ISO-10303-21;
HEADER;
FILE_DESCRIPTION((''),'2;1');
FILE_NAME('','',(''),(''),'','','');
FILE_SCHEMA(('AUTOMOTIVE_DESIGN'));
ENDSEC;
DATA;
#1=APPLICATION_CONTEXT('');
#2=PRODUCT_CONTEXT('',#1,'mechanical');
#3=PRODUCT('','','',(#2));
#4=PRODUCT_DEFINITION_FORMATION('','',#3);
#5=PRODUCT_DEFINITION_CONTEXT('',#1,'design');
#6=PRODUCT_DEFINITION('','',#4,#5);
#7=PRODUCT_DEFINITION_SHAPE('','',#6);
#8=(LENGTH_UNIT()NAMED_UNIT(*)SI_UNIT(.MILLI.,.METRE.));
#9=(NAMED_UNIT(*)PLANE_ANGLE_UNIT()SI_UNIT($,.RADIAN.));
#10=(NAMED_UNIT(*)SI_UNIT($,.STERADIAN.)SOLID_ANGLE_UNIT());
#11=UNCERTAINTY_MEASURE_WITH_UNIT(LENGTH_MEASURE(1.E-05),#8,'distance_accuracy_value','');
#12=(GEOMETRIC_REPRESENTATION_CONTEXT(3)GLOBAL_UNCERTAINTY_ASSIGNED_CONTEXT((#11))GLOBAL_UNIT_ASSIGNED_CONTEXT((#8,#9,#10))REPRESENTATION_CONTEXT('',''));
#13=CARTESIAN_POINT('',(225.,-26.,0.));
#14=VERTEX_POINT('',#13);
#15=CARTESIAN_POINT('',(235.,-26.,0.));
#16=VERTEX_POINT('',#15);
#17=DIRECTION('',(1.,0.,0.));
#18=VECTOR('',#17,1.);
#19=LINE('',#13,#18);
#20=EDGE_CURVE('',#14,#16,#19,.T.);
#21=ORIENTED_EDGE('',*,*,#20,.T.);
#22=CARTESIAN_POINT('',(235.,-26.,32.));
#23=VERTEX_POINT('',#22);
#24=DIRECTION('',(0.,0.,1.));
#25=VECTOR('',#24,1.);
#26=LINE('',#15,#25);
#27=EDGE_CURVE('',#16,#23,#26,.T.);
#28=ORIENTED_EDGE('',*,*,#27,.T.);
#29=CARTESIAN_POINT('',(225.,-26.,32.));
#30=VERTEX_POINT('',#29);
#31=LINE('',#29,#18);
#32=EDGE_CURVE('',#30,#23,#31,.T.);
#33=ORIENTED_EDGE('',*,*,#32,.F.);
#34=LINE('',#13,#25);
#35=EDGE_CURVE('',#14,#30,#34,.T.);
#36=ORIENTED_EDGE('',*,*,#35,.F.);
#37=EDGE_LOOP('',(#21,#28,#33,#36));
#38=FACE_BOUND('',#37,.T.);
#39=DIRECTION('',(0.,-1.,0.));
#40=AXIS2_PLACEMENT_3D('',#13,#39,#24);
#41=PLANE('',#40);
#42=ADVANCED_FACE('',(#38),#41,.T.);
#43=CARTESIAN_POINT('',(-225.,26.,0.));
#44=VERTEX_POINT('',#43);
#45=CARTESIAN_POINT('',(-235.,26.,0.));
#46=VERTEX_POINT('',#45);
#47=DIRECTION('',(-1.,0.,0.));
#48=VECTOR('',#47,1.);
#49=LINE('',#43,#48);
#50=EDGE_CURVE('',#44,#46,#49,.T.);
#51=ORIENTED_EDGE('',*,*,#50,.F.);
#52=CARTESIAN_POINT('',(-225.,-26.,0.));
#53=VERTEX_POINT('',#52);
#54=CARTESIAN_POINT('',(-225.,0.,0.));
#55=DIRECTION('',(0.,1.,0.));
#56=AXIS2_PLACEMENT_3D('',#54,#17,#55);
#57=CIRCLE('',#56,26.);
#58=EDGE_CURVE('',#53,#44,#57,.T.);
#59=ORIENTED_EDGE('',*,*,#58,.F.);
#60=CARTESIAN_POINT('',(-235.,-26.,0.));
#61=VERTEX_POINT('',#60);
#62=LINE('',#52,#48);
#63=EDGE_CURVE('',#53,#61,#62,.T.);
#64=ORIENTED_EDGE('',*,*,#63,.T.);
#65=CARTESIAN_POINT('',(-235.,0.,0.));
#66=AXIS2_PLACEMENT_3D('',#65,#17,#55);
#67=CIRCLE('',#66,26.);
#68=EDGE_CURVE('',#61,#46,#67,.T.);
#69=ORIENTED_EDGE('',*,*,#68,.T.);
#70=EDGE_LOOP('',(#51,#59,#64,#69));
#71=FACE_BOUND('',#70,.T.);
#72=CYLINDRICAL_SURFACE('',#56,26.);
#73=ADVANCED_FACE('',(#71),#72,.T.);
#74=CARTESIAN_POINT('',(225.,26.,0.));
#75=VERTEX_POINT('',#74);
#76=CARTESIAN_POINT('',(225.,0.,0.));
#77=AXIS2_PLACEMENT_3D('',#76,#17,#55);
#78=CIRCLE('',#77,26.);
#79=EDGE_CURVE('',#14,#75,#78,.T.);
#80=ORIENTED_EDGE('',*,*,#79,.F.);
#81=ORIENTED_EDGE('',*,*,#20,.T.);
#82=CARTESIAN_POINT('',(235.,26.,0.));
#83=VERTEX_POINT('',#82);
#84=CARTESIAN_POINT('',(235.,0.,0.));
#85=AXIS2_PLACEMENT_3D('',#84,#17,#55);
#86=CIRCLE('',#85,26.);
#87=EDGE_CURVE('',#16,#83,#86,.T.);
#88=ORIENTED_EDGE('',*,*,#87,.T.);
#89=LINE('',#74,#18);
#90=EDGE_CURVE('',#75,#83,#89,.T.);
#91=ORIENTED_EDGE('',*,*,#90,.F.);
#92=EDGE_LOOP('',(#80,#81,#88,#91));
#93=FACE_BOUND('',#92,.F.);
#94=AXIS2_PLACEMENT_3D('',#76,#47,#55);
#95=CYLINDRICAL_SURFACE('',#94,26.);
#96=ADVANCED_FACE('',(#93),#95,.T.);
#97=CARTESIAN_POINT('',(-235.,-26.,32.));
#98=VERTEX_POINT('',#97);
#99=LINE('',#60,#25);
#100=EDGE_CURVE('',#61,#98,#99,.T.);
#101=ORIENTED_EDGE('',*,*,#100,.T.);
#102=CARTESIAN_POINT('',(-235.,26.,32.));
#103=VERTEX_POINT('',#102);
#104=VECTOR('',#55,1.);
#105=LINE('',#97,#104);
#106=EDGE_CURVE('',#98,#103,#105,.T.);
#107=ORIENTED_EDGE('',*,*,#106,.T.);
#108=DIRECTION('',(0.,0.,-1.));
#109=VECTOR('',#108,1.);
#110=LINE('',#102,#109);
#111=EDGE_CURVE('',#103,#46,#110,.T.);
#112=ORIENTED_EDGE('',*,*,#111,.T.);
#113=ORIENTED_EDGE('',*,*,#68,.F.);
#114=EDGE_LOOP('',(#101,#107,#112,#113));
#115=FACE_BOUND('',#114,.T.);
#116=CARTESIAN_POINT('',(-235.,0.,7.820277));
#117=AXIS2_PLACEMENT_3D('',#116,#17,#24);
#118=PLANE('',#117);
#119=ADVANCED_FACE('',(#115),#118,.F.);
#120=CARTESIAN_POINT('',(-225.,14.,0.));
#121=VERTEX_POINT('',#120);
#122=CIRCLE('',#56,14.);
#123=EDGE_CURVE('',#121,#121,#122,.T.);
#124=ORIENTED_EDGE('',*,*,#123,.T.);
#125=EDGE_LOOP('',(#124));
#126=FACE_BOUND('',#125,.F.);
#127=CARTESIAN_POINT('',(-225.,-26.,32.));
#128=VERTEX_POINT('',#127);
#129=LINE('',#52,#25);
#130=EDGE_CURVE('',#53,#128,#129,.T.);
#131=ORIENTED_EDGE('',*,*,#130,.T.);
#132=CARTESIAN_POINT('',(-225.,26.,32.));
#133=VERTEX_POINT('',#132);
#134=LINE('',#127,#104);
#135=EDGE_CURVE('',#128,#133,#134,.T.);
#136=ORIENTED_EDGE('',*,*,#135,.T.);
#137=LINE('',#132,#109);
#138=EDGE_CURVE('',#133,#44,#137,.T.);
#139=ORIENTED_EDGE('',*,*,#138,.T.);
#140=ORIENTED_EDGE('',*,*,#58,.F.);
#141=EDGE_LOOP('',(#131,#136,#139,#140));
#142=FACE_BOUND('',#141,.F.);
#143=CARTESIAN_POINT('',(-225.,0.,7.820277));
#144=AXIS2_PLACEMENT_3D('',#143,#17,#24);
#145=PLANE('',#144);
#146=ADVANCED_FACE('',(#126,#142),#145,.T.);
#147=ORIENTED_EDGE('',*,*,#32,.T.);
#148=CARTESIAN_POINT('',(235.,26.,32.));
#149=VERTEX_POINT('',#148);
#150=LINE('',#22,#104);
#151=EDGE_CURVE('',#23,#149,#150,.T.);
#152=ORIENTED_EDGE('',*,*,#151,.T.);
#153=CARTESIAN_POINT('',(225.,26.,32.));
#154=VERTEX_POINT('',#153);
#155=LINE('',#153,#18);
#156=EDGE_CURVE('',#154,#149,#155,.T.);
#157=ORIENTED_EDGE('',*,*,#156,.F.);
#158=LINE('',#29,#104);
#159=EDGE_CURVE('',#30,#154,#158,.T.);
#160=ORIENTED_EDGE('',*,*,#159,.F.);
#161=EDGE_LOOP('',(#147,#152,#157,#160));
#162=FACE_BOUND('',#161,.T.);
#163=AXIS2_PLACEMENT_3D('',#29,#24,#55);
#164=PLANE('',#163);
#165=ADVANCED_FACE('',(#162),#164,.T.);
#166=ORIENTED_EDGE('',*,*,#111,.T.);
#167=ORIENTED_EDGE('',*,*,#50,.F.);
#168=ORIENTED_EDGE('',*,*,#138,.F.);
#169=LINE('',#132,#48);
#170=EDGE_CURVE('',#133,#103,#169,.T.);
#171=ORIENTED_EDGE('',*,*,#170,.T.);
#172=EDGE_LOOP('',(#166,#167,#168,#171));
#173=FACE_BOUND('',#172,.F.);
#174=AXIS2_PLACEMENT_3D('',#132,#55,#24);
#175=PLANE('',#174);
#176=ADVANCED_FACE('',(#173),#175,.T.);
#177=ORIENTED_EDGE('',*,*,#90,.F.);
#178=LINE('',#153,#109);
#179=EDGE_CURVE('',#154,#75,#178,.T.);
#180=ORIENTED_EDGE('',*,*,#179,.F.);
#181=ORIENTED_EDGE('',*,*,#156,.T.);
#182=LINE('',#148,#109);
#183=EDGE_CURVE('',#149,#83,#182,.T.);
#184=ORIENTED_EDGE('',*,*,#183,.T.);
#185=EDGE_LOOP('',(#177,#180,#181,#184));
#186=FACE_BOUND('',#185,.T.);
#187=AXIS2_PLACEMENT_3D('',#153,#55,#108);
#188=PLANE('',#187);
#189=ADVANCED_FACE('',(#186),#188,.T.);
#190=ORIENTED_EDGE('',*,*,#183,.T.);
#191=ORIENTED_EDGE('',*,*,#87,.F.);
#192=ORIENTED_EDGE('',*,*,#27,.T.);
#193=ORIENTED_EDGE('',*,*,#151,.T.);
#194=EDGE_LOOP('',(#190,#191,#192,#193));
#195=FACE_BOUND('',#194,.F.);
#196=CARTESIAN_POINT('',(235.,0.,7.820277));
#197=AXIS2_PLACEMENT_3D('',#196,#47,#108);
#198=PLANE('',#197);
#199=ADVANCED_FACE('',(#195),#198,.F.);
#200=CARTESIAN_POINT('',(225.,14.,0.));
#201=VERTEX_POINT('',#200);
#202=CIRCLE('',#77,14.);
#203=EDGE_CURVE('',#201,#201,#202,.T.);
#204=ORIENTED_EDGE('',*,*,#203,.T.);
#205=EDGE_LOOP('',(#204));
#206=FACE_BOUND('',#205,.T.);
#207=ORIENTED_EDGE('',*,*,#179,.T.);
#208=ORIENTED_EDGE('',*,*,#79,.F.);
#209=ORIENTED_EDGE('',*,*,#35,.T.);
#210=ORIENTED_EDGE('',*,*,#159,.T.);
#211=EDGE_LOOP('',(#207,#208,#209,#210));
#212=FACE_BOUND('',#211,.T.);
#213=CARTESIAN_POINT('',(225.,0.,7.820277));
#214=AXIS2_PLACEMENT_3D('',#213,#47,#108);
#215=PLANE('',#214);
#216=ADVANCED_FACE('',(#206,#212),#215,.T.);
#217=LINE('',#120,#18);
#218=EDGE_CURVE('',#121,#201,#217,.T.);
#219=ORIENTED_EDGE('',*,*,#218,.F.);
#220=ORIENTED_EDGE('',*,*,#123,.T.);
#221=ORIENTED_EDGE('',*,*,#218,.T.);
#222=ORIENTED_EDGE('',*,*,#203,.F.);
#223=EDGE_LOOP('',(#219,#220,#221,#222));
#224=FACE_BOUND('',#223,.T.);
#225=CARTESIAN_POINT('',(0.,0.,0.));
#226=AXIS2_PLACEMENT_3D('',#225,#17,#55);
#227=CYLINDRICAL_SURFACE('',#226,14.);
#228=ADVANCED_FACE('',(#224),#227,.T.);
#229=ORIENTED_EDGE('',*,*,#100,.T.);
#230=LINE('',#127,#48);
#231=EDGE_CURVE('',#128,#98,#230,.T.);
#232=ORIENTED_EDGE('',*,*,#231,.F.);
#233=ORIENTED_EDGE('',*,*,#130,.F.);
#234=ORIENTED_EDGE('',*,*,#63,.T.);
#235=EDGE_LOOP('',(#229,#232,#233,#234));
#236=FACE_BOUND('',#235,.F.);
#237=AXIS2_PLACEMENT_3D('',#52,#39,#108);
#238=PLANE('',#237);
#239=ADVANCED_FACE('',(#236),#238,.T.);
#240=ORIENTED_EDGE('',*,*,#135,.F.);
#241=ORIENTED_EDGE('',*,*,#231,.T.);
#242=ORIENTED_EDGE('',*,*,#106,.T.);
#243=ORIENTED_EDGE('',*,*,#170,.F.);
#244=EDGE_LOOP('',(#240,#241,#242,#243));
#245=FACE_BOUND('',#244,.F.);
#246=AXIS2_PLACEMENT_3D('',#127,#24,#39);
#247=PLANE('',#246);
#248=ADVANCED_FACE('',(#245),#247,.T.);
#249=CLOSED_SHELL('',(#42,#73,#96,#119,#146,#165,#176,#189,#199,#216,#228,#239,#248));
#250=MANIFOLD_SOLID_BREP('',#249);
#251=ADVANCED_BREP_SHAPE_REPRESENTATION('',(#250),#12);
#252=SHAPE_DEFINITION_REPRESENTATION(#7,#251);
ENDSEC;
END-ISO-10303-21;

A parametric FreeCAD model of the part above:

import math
import FreeCAD as App
import Part
import Sketcher

V = App.Vector

doc = App.newDocument("Part")
body = doc.addObject("PartDesign::Body", "Body")

# Sketch on YZ plane
sketch1 = body.newObject("Sketcher::SketchObject", "Sketch")
sketch1.AttachmentSupport = (doc.getObject("YZ_Plane"), [""])
sketch1.MapMode = "FlatFace"
sketch1.addGeometry(Part.Circle(V(0, 0, 0), V(0, 0, 1), 14), False)
sketch1.addConstraint(Sketcher.Constraint("Coincident", 0, 3, -1, 1))
sketch1.addConstraint(Sketcher.Constraint("Diameter", 0, 28.0))
pad1 = body.newObject("PartDesign::Pad", "Pad")
pad1.Profile = sketch1
pad1.Length = 450
pad1.Midplane = True

# Sketch on YZ plane
sketch2 = body.newObject("Sketcher::SketchObject", "Sketch001")
sketch2.AttachmentSupport = (doc.getObject("YZ_Plane"), [""])
sketch2.MapMode = "FlatFace"
sketch2.AttachmentOffset = App.Placement(V(0, 0, 225), App.Rotation())
sketch2.addGeometry(Part.LineSegment(V(-26, 32, 0), V(-26, 0, 0)), False)
sketch2.addGeometry(Part.ArcOfCircle(Part.Circle(V(0, 0, 0), V(0, 0, 1), 26), math.radians(180), math.radians(360)), False)
sketch2.addGeometry(Part.LineSegment(V(26, 0, 0), V(26, 32, 0)), False)
sketch2.addGeometry(Part.LineSegment(V(26, 32, 0), V(-26, 32, 0)), False)
sketch2.addConstraint(Sketcher.Constraint("Tangent", 0, 2, 1, 1))
sketch2.addConstraint(Sketcher.Constraint("Tangent", 1, 2, 2, 1))
sketch2.addConstraint(Sketcher.Constraint("Coincident", 2, 2, 3, 1))
sketch2.addConstraint(Sketcher.Constraint("Coincident", 3, 2, 0, 1))
sketch2.addConstraint(Sketcher.Constraint("Vertical", 0))
sketch2.addConstraint(Sketcher.Constraint("Vertical", 2))
sketch2.addConstraint(Sketcher.Constraint("Horizontal", 3))
sketch2.addConstraint(Sketcher.Constraint("Coincident", 1, 3, -1, 1))
sketch2.addConstraint(Sketcher.Constraint("Radius", 1, 26.0))
sketch2.addConstraint(Sketcher.Constraint("DistanceY", 0, 2, 0, 1, 32.0))
pad2 = body.newObject("PartDesign::Pad", "Pad001")
pad2.Profile = sketch2
pad2.Length = 10
doc.recompute()

mirrored = body.newObject("PartDesign::Mirrored", "Mirrored")
mirrored.Originals = [pad2]
mirrored.MirrorPlane = (doc.getObject("YZ_Plane"), [""])
body.Tip = mirrored

doc.recompute()
